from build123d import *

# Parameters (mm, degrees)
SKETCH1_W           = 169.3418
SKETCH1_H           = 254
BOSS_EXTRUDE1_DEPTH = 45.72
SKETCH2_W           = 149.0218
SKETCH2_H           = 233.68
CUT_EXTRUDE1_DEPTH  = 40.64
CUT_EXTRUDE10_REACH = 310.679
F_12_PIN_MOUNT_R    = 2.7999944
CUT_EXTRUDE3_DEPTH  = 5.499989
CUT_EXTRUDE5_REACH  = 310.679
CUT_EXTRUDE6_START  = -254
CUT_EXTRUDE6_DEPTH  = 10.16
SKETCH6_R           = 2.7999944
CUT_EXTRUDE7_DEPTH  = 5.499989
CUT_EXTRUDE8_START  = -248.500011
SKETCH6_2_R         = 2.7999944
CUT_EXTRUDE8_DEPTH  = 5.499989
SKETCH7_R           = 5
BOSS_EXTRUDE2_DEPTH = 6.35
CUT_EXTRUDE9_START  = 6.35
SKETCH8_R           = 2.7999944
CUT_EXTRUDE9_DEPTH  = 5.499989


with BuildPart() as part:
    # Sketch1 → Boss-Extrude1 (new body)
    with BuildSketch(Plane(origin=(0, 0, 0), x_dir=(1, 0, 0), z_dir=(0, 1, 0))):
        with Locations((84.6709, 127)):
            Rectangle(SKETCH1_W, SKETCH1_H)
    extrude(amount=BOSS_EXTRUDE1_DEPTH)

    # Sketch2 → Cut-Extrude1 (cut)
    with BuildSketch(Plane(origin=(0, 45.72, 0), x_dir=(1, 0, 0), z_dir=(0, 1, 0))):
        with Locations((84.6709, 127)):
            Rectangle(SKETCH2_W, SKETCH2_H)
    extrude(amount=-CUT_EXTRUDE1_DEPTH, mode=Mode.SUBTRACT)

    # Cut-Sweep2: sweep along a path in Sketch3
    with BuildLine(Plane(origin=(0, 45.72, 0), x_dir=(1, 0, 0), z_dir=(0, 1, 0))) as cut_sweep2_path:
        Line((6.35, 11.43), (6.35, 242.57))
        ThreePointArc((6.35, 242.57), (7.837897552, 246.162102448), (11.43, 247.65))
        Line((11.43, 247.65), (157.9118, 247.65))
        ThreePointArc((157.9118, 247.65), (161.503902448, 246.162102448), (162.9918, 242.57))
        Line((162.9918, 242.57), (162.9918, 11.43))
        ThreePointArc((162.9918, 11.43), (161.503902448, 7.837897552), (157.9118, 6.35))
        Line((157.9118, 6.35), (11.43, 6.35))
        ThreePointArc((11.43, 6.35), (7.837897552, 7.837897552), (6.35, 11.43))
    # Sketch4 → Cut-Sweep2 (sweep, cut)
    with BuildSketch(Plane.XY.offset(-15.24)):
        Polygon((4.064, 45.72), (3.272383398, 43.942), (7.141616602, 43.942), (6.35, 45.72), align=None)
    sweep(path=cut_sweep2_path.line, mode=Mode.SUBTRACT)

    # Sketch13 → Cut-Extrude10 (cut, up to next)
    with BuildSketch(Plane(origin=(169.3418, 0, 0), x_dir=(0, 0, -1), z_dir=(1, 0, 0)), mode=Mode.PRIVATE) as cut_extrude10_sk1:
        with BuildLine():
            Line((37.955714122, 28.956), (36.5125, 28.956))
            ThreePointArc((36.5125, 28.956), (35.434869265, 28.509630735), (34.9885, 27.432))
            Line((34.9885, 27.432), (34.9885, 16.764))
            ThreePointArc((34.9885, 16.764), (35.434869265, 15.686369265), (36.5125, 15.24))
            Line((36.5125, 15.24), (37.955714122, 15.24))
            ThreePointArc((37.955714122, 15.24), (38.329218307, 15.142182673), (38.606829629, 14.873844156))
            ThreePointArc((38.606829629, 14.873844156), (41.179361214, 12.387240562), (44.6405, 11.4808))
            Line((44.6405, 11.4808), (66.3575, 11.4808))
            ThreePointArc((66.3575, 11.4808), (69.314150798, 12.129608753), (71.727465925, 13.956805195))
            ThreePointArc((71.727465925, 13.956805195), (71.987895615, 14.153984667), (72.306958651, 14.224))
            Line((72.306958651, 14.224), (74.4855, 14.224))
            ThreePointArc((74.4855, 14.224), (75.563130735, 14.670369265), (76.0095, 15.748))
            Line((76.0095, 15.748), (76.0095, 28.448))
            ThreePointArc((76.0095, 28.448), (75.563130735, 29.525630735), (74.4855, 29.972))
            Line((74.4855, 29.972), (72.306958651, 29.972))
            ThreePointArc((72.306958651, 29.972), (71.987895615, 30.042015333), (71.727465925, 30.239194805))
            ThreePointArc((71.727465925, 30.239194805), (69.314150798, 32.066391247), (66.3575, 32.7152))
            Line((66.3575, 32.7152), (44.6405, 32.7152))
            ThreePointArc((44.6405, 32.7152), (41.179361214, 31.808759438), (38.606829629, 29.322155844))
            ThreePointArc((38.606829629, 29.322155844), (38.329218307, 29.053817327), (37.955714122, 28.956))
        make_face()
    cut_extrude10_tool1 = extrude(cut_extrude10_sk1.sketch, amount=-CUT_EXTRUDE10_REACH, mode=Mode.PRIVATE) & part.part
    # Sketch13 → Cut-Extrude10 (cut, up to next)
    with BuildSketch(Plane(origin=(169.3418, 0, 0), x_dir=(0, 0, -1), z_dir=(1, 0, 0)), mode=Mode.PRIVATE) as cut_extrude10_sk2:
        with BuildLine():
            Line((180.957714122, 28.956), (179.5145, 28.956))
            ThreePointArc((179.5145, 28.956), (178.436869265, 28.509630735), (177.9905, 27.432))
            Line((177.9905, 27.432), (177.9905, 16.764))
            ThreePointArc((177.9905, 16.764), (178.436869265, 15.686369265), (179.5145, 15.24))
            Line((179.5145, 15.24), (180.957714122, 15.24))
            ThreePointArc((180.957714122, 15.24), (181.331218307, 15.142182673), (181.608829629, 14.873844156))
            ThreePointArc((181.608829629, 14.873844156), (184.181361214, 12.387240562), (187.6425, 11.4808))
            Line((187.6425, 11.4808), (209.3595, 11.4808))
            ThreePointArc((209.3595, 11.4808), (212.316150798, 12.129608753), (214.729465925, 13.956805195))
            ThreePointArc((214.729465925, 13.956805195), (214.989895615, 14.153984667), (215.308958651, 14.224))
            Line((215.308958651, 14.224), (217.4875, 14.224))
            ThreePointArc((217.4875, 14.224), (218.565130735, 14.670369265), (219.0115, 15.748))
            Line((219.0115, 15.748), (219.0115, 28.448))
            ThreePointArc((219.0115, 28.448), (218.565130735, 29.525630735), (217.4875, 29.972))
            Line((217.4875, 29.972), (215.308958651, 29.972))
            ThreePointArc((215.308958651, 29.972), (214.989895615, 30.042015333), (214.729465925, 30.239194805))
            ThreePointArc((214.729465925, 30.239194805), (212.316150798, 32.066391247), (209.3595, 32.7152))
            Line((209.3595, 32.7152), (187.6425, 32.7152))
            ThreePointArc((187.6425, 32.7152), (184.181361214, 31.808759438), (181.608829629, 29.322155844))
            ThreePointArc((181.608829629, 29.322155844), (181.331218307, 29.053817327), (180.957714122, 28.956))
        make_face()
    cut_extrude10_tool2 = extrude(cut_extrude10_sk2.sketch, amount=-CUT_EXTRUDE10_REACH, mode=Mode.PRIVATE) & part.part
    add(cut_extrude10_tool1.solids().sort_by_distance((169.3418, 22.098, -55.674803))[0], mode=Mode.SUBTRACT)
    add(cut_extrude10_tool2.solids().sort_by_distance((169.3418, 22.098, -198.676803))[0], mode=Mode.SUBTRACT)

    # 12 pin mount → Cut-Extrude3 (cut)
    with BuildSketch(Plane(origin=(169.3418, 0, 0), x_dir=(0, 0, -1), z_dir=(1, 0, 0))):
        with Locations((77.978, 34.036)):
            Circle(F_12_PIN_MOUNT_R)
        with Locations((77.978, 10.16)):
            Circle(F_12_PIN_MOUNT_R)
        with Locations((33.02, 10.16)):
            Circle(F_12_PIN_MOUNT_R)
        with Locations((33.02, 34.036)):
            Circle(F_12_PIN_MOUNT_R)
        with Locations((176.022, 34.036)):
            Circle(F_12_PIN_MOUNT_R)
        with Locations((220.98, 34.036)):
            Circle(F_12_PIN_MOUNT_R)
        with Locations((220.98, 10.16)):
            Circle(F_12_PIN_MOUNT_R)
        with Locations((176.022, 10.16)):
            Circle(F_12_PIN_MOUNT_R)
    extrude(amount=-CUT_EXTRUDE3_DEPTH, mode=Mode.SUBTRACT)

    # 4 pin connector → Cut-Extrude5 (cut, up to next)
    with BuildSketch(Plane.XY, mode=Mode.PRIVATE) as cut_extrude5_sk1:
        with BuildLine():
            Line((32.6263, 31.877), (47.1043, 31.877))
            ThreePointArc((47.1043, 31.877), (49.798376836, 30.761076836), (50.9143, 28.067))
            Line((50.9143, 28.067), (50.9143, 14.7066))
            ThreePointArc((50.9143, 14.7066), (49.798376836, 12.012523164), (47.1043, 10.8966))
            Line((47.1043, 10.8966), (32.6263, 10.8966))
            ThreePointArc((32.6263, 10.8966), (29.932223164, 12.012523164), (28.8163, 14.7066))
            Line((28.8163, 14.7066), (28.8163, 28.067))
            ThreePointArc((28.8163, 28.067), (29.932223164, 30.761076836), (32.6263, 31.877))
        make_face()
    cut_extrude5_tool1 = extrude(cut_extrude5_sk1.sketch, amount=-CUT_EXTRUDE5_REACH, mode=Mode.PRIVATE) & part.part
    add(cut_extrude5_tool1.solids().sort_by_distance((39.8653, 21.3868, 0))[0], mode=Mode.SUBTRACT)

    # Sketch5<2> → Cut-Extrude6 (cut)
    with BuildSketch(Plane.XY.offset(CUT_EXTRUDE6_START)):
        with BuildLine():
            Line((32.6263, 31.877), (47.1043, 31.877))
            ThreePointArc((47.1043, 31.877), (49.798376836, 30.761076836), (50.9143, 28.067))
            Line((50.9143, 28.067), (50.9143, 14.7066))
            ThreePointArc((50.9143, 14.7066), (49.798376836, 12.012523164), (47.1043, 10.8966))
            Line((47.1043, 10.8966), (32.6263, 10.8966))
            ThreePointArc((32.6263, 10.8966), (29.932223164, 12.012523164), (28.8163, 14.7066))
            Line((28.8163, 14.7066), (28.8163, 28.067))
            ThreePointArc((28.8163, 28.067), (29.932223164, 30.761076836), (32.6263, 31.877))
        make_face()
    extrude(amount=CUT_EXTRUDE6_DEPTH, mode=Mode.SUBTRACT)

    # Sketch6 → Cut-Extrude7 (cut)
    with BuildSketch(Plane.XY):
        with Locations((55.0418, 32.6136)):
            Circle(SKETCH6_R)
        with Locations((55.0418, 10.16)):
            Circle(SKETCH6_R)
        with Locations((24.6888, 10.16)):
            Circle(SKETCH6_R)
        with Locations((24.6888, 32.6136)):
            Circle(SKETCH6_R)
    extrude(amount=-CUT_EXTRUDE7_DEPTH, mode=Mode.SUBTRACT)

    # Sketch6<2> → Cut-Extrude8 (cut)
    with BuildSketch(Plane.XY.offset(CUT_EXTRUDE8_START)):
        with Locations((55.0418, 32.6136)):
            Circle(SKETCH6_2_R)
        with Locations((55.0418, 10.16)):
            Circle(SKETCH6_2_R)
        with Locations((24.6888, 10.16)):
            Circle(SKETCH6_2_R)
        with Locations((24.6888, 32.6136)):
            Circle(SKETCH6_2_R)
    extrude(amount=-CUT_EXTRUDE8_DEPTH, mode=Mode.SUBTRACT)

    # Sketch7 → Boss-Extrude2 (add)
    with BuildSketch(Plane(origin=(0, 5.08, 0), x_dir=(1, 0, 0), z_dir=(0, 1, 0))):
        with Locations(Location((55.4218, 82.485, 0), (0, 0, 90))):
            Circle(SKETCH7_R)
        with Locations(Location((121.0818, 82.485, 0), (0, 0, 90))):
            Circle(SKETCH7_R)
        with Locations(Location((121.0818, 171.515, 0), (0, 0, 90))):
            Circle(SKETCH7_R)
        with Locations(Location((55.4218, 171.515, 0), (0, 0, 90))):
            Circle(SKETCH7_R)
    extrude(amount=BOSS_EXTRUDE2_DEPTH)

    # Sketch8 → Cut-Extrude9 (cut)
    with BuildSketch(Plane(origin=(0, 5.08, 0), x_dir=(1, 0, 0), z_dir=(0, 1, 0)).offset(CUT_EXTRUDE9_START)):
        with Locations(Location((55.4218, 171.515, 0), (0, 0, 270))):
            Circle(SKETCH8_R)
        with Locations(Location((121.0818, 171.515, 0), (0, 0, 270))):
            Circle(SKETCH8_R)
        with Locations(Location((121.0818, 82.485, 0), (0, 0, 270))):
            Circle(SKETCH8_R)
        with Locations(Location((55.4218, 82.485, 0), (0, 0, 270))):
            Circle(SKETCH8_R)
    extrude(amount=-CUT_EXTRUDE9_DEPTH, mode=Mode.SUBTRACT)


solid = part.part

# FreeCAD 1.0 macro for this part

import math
import FreeCAD as App
import Part
import Sketcher
from FreeCAD import Vector
Q = App.Units.Quantity


def add_polygon(sketch, points):
    """Adds a closed chain of lines whose ends are joined by coincident constraints."""
    first, n = sketch.GeometryCount, len(points)
    for a, b in zip(points, points[1:] + points[:1]):
        sketch.addGeometry(Part.LineSegment(App.Vector(*a, 0), App.Vector(*b, 0)), False)
    for i in range(n):
        sketch.addConstraint(Sketcher.Constraint("Coincident", first + i, 2, first + (i + 1) % n, 1))

doc = App.newDocument("Part")
body = doc.addObject("PartDesign::Body", "Body")

# Sketch on XZ plane
sketch1 = body.newObject("Sketcher::SketchObject", "Sketch")
sketch1.AttachmentSupport = (doc.getObject("XZ_Plane"), [""])
sketch1.MapMode = "FlatFace"
add_polygon(sketch1, [(0, -254), (0, 0), (169, 0), (169, -254)])  # lines 0-3
sketch1.addConstraint(Sketcher.Constraint("Vertical", 0))
sketch1.addConstraint(Sketcher.Constraint("Horizontal", 1))
sketch1.addConstraint(Sketcher.Constraint("Vertical", 2))
sketch1.addConstraint(Sketcher.Constraint("Horizontal", 3))
sketch1.addConstraint(Sketcher.Constraint("Coincident", 0, 2, -1, 1))
sketch1.addConstraint(Sketcher.Constraint("DistanceY", 0, 1, 0, 2, Q("10 in")))
sketch1.addConstraint(Sketcher.Constraint("DistanceX", 1, 1, 1, 2, Q("6.667 in")))
pad1 = body.newObject("PartDesign::Pad", "Pad")
pad1.Profile = sketch1
pad1.Length = Q("1.8 in")
pad1.Reversed = True

# Sketch on XZ plane
sketch2 = body.newObject("Sketcher::SketchObject", "Sketch001")
sketch2.AttachmentSupport = (doc.getObject("XZ_Plane"), [""])
sketch2.MapMode = "FlatFace"
sketch2.AttachmentOffset = App.Placement(Vector(0, 0, -1.8 * 25.4), App.Rotation())
add_polygon(sketch2, [(10, -244), (10, -10), (159, -10), (159, -244)])  # lines 0-3
sketch2.addConstraint(Sketcher.Constraint("Vertical", 0))
sketch2.addConstraint(Sketcher.Constraint("Horizontal", 1))
sketch2.addConstraint(Sketcher.Constraint("Vertical", 2))
sketch2.addConstraint(Sketcher.Constraint("Horizontal", 3))
sketch2.addConstraint(Sketcher.Constraint("DistanceY", 0, 1, 0, 2, Q("9.2 in")))
sketch2.addConstraint(Sketcher.Constraint("DistanceX", -1, 1, 0, 2, Q("0.4 in")))
sketch2.addConstraint(Sketcher.Constraint("DistanceY", 0, 2, -1, 1, Q("0.4 in")))
sketch2.addConstraint(Sketcher.Constraint("DistanceX", 1, 1, 1, 2, Q("5.867 in")))
pocket1 = body.newObject("PartDesign::Pocket", "Pocket")
pocket1.Profile = sketch2
pocket1.Length = Q("1.6 in")
pocket1.Reversed = True

# Sketch on XY plane
sketch3 = body.newObject("Sketcher::SketchObject", "Sketch002")
sketch3.AttachmentSupport = (doc.getObject("XY_Plane"), [""])
sketch3.MapMode = "FlatFace"
sketch3.AttachmentOffset = App.Placement(Vector(0, 0, -0.6 * 25.4), App.Rotation())
add_polygon(sketch3, [(4.1, 45.7), (3.3, 43.9), (7.1, 43.9), (6.3, 45.7)])  # lines 0-3
sketch3.addConstraint(Sketcher.Constraint("Horizontal", 1))
sketch3.addConstraint(Sketcher.Constraint("Horizontal", 3))
sketch3.addConstraint(Sketcher.Constraint("Equal", 0, 2))
sketch3.addConstraint(Sketcher.Constraint("Angle", 0, Q("-114 deg")))
sketch3.addConstraint(Sketcher.Constraint("DistanceX", 3, 2, 3, 1, Q("0.09 in")))
sketch3.addConstraint(Sketcher.Constraint("DistanceY", -1, 1, 2, 2, Q("1.8 in")))
sketch3.addConstraint(Sketcher.Constraint("DistanceY", -1, 1, 0, 2, Q("1.73 in")))
sketch3.addConstraint(Sketcher.Constraint("DistanceX", -1, 1, 2, 2, Q("0.25 in")))

# Sketch on XZ plane
sketch4 = body.newObject("Sketcher::SketchObject", "Sketch003")
sketch4.AttachmentSupport = (doc.getObject("XZ_Plane"), [""])
sketch4.MapMode = "FlatFace"
sketch4.AttachmentOffset = App.Placement(Vector(0, 0, -1.8 * 25.4), App.Rotation())
sketch4.addGeometry(Part.LineSegment(Vector(6, -11, 0), Vector(6, -243, 0)), False)
sketch4.addGeometry(Part.ArcOfCircle(Part.Circle(Vector(11, -243, 0), Vector(0, 0, 1), 5), math.radians(-180), math.radians(-90)), False)
sketch4.addGeometry(Part.LineSegment(Vector(11, -248, 0), Vector(158, -248, 0)), False)
sketch4.addGeometry(Part.ArcOfCircle(Part.Circle(Vector(158, -243, 0), Vector(0, 0, 1), 5), math.radians(-90), math.radians(0)), False)
sketch4.addGeometry(Part.LineSegment(Vector(163, -243, 0), Vector(163, -11, 0)), False)
sketch4.addGeometry(Part.ArcOfCircle(Part.Circle(Vector(158, -11, 0), Vector(0, 0, 1), 5), math.radians(0), math.radians(90)), False)
sketch4.addGeometry(Part.LineSegment(Vector(158, -6, 0), Vector(11, -6, 0)), False)
sketch4.addGeometry(Part.ArcOfCircle(Part.Circle(Vector(11, -11, 0), Vector(0, 0, 1), 5), math.radians(90), math.radians(180)), False)
sketch4.addConstraint(Sketcher.Constraint("Tangent", 0, 2, 1, 1))
sketch4.addConstraint(Sketcher.Constraint("Tangent", 1, 2, 2, 1))
sketch4.addConstraint(Sketcher.Constraint("Tangent", 2, 2, 3, 1))
sketch4.addConstraint(Sketcher.Constraint("Tangent", 3, 2, 4, 1))
sketch4.addConstraint(Sketcher.Constraint("Tangent", 4, 2, 5, 1))
sketch4.addConstraint(Sketcher.Constraint("Tangent", 5, 2, 6, 1))
sketch4.addConstraint(Sketcher.Constraint("Tangent", 6, 2, 7, 1))
sketch4.addConstraint(Sketcher.Constraint("Tangent", 7, 2, 0, 1))
sketch4.addConstraint(Sketcher.Constraint("Vertical", 0))
sketch4.addConstraint(Sketcher.Constraint("Horizontal", 2))
sketch4.addConstraint(Sketcher.Constraint("Vertical", 4))
sketch4.addConstraint(Sketcher.Constraint("Horizontal", 6))
sketch4.addConstraint(Sketcher.Constraint("Equal", 1, 3))
sketch4.addConstraint(Sketcher.Constraint("Equal", 3, 5))
sketch4.addConstraint(Sketcher.Constraint("Equal", 5, 7))
sketch4.addConstraint(Sketcher.Constraint("Radius", 1, Q("0.2 in")))
sketch4.addConstraint(Sketcher.Constraint("DistanceY", 0, 2, 0, 1, Q("9.1 in")))
sketch4.addConstraint(Sketcher.Constraint("DistanceX", 2, 1, 2, 2, Q("5.767 in")))
sketch4.addConstraint(Sketcher.Constraint("DistanceX", -1, 1, 1, 3, Q("0.45 in")))
sketch4.addConstraint(Sketcher.Constraint("DistanceY", 1, 3, -1, 1, Q("9.55 in")))
doc.recompute()

subtractivepipe = body.newObject("PartDesign::SubtractivePipe", "SubtractivePipe")
subtractivepipe.Profile = sketch3
subtractivepipe.Spine = (sketch4, ["Edge1", "Edge2", "Edge3", "Edge4", "Edge5", "Edge6", "Edge7", "Edge8"])

# Sketch on YZ plane
sketch5 = body.newObject("Sketcher::SketchObject", "Sketch004")
sketch5.AttachmentSupport = (doc.getObject("YZ_Plane"), [""])
sketch5.MapMode = "FlatFace"
sketch5.AttachmentOffset = App.Placement(Vector(0, 0, 6.667 * 25.4), App.Rotation())
sketch5.addGeometry(Part.LineSegment(Vector(29, -38, 0), Vector(29, -36.5, 0)), False)
sketch5.addGeometry(Part.ArcOfCircle(Part.Circle(Vector(27.4, -36.5, 0), Vector(0, 0, 1), 1.5), math.radians(0), math.radians(90)), False)
sketch5.addGeometry(Part.LineSegment(Vector(27.4, -35, 0), Vector(16.8, -35, 0)), False)
sketch5.addGeometry(Part.ArcOfCircle(Part.Circle(Vector(16.8, -36.5, 0), Vector(0, 0, 1), 1.5), math.radians(90), math.radians(180)), False)
sketch5.addGeometry(Part.LineSegment(Vector(15.2, -36.5, 0), Vector(15.2, -38, 0)), False)
sketch5.addGeometry(Part.ArcOfCircle(Part.Circle(Vector(14.5, -38, 0), Vector(0, 0, 1), 0.8), math.radians(-59), math.radians(0)), False)
sketch5.addGeometry(Part.ArcOfCircle(Part.Circle(Vector(18.5, -44.6, 0), Vector(0, 0, 1), 7.1), math.radians(121), math.radians(180)), False)
sketch5.addGeometry(Part.LineSegment(Vector(11.5, -44.6, 0), Vector(11.5, -66.4, 0)), False)
sketch5.addGeometry(Part.ArcOfCircle(Part.Circle(Vector(18.5, -66.4, 0), Vector(0, 0, 1), 7.1), math.radians(180), math.radians(230)), False)
sketch5.addGeometry(Part.ArcOfCircle(Part.Circle(Vector(13.5, -72.3, 0), Vector(0, 0, 1), 0.8), math.radians(0), math.radians(50)), False)
sketch5.addGeometry(Part.LineSegment(Vector(14.2, -72.3, 0), Vector(14.2, -74.5, 0)), False)
sketch5.addGeometry(Part.ArcOfCircle(Part.Circle(Vector(15.7, -74.5, 0), Vector(0, 0, 1), 1.5), math.radians(180), math.radians(270)), False)
sketch5.addGeometry(Part.LineSegment(Vector(15.7, -76, 0), Vector(28.4, -76, 0)), False)
sketch5.addGeometry(Part.ArcOfCircle(Part.Circle(Vector(28.4, -74.5, 0), Vector(0, 0, 1), 1.5), math.radians(-90), math.radians(0)), False)
sketch5.addGeometry(Part.LineSegment(Vector(30, -74.5, 0), Vector(30, -72.3, 0)), False)
sketch5.addGeometry(Part.ArcOfCircle(Part.Circle(Vector(30.7, -72.3, 0), Vector(0, 0, 1), 0.8), math.radians(130), math.radians(180)), False)
sketch5.addGeometry(Part.ArcOfCircle(Part.Circle(Vector(25.7, -66.4, 0), Vector(0, 0, 1), 7.1), math.radians(-50), math.radians(0)), False)
sketch5.addGeometry(Part.LineSegment(Vector(32.7, -66.4, 0), Vector(32.7, -44.6, 0)), False)
sketch5.addGeometry(Part.ArcOfCircle(Part.Circle(Vector(25.7, -44.6, 0), Vector(0, 0, 1), 7.1), math.radians(0), math.radians(59)), False)
sketch5.addGeometry(Part.ArcOfCircle(Part.Circle(Vector(29.7, -38, 0), Vector(0, 0, 1), 0.8), math.radians(-180), math.radians(-121)), False)
sketch5.addConstraint(Sketcher.Constraint("Tangent", 0, 2, 1, 1))
sketch5.addConstraint(Sketcher.Constraint("Tangent", 1, 2, 2, 1))
sketch5.addConstraint(Sketcher.Constraint("Tangent", 2, 2, 3, 1))
sketch5.addConstraint(Sketcher.Constraint("Tangent", 3, 2, 4, 1))
sketch5.addConstraint(Sketcher.Constraint("Tangent", 4, 2, 5, 2))
sketch5.addConstraint(Sketcher.Constraint("Tangent", 5, 1, 6, 1))
sketch5.addConstraint(Sketcher.Constraint("Tangent", 6, 2, 7, 1))
sketch5.addConstraint(Sketcher.Constraint("Tangent", 7, 2, 8, 1))
sketch5.addConstraint(Sketcher.Constraint("Tangent", 8, 2, 9, 2))
sketch5.addConstraint(Sketcher.Constraint("Tangent", 9, 1, 10, 1))
sketch5.addConstraint(Sketcher.Constraint("Tangent", 10, 2, 11, 1))
sketch5.addConstraint(Sketcher.Constraint("Tangent", 11, 2, 12, 1))
sketch5.addConstraint(Sketcher.Constraint("Tangent", 12, 2, 13, 1))
sketch5.addConstraint(Sketcher.Constraint("Tangent", 13, 2, 14, 1))
sketch5.addConstraint(Sketcher.Constraint("Tangent", 14, 2, 15, 2))
sketch5.addConstraint(Sketcher.Constraint("Tangent", 15, 1, 16, 1))
sketch5.addConstraint(Sketcher.Constraint("Tangent", 16, 2, 17, 1))
sketch5.addConstraint(Sketcher.Constraint("Tangent", 17, 2, 18, 1))
sketch5.addConstraint(Sketcher.Constraint("Tangent", 18, 2, 19, 2))
sketch5.addConstraint(Sketcher.Constraint("Tangent", 19, 1, 0, 1))
sketch5.addConstraint(Sketcher.Constraint("Vertical", 0))
sketch5.addConstraint(Sketcher.Constraint("Horizontal", 2))
sketch5.addConstraint(Sketcher.Constraint("Vertical", 4))
sketch5.addConstraint(Sketcher.Constraint("Vertical", 7))
sketch5.addConstraint(Sketcher.Constraint("Vertical", 10))
sketch5.addConstraint(Sketcher.Constraint("Horizontal", 12))
sketch5.addConstraint(Sketcher.Constraint("Vertical", 14))
sketch5.addConstraint(Sketcher.Constraint("Vertical", 17))
sketch5.addConstraint(Sketcher.Constraint("Equal", 1, 3))
sketch5.addConstraint(Sketcher.Constraint("Equal", 6, 8))
sketch5.addConstraint(Sketcher.Constraint("Equal", 5, 9))
sketch5.addConstraint(Sketcher.Constraint("Equal", 3, 11))
sketch5.addConstraint(Sketcher.Constraint("Equal", 11, 13))
sketch5.addConstraint(Sketcher.Constraint("Equal", 9, 15))
sketch5.addConstraint(Sketcher.Constraint("Equal", 8, 16))
sketch5.addConstraint(Sketcher.Constraint("Equal", 16, 18))
sketch5.addConstraint(Sketcher.Constraint("Equal", 15, 19))
sketch5.addConstraint(Sketcher.Constraint("Horizontal", 9, 3, 15, 3))
sketch5.addConstraint(Sketcher.Constraint("Horizontal", 8, 3, 16, 3))
sketch5.addConstraint(Sketcher.Constraint("Horizontal", 6, 3, 18, 3))
sketch5.addConstraint(Sketcher.Constraint("Horizontal", 5, 3, 19, 3))
sketch5.addConstraint(Sketcher.Constraint("Radius", 1, Q("0.06 in")))
sketch5.addConstraint(Sketcher.Constraint("Radius", 5, Q("0.03 in")))
sketch5.addConstraint(Sketcher.Constraint("DistanceX", 12, 1, 12, 2, Q("0.5 in")))
sketch5.addConstraint(Sketcher.Constraint("Radius", 6, Q("0.278 in")))
sketch5.addConstraint(Sketcher.Constraint("DistanceX", 2, 2, 2, 1, Q("0.42 in")))
sketch5.addConstraint(Sketcher.Constraint("DistanceX", -1, 1, 3, 2, Q("0.6 in")))
sketch5.addConstraint(Sketcher.Constraint("DistanceX", 9, 3, 8, 3, Q("0.2 in")))
sketch5.addConstraint(Sketcher.Constraint("DistanceY", 7, 2, 7, 1, Q("0.855 in")))
sketch5.addConstraint(Sketcher.Constraint("DistanceY", 6, 3, 3, 3, Q("0.32 in")))
sketch5.addConstraint(Sketcher.Constraint("DistanceY", 11, 3, 8, 3, Q("0.32 in")))
sketch5.addConstraint(Sketcher.Constraint("DistanceY", 1, 3, -1, 1, Q("1.4375 in")))
pocket2 = body.newObject("PartDesign::Pocket", "Pocket001")
pocket2.Profile = sketch5
pocket2.Type = "UpToFirst"

# Sketch on YZ plane
sketch6 = body.newObject("Sketcher::SketchObject", "Sketch005")
sketch6.AttachmentSupport = (doc.getObject("YZ_Plane"), [""])
sketch6.MapMode = "FlatFace"
sketch6.AttachmentOffset = App.Placement(Vector(0, 0, 6.667 * 25.4), App.Rotation())
sketch6.addGeometry(Part.LineSegment(Vector(29, -181, 0), Vector(29, -179.5, 0)), False)
sketch6.addGeometry(Part.ArcOfCircle(Part.Circle(Vector(27.4, -179.5, 0), Vector(0, 0, 1), 1.5), math.radians(0), math.radians(90)), False)
sketch6.addGeometry(Part.LineSegment(Vector(27.4, -178, 0), Vector(16.8, -178, 0)), False)
sketch6.addGeometry(Part.ArcOfCircle(Part.Circle(Vector(16.8, -179.5, 0), Vector(0, 0, 1), 1.5), math.radians(90), math.radians(180)), False)
sketch6.addGeometry(Part.LineSegment(Vector(15.2, -179.5, 0), Vector(15.2, -181, 0)), False)
sketch6.addGeometry(Part.ArcOfCircle(Part.Circle(Vector(14.5, -181, 0), Vector(0, 0, 1), 0.8), math.radians(-59), math.radians(0)), False)
sketch6.addGeometry(Part.ArcOfCircle(Part.Circle(Vector(18.5, -187.6, 0), Vector(0, 0, 1), 7.1), math.radians(121), math.radians(180)), False)
sketch6.addGeometry(Part.LineSegment(Vector(11.5, -187.6, 0), Vector(11.5, -209.4, 0)), False)
sketch6.addGeometry(Part.ArcOfCircle(Part.Circle(Vector(18.5, -209.4, 0), Vector(0, 0, 1), 7.1), math.radians(180), math.radians(230)), False)
sketch6.addGeometry(Part.ArcOfCircle(Part.Circle(Vector(13.5, -215.3, 0), Vector(0, 0, 1), 0.8), math.radians(0), math.radians(50)), False)
sketch6.addGeometry(Part.LineSegment(Vector(14.2, -215.3, 0), Vector(14.2, -217.5, 0)), False)
sketch6.addGeometry(Part.ArcOfCircle(Part.Circle(Vector(15.7, -217.5, 0), Vector(0, 0, 1), 1.5), math.radians(180), math.radians(270)), False)
sketch6.addGeometry(Part.LineSegment(Vector(15.7, -219, 0), Vector(28.4, -219, 0)), False)
sketch6.addGeometry(Part.ArcOfCircle(Part.Circle(Vector(28.4, -217.5, 0), Vector(0, 0, 1), 1.5), math.radians(-90), math.radians(0)), False)
sketch6.addGeometry(Part.LineSegment(Vector(30, -217.5, 0), Vector(30, -215.3, 0)), False)
sketch6.addGeometry(Part.ArcOfCircle(Part.Circle(Vector(30.7, -215.3, 0), Vector(0, 0, 1), 0.8), math.radians(130), math.radians(180)), False)
sketch6.addGeometry(Part.ArcOfCircle(Part.Circle(Vector(25.7, -209.4, 0), Vector(0, 0, 1), 7.1), math.radians(-50), math.radians(0)), False)
sketch6.addGeometry(Part.LineSegment(Vector(32.7, -209.4, 0), Vector(32.7, -187.6, 0)), False)
sketch6.addGeometry(Part.ArcOfCircle(Part.Circle(Vector(25.7, -187.6, 0), Vector(0, 0, 1), 7.1), math.radians(0), math.radians(59)), False)
sketch6.addGeometry(Part.ArcOfCircle(Part.Circle(Vector(29.7, -181, 0), Vector(0, 0, 1), 0.8), math.radians(-180), math.radians(-121)), False)
sketch6.addConstraint(Sketcher.Constraint("Tangent", 0, 2, 1, 1))
sketch6.addConstraint(Sketcher.Constraint("Tangent", 1, 2, 2, 1))
sketch6.addConstraint(Sketcher.Constraint("Tangent", 2, 2, 3, 1))
sketch6.addConstraint(Sketcher.Constraint("Tangent", 3, 2, 4, 1))
sketch6.addConstraint(Sketcher.Constraint("Tangent", 4, 2, 5, 2))
sketch6.addConstraint(Sketcher.Constraint("Tangent", 5, 1, 6, 1))
sketch6.addConstraint(Sketcher.Constraint("Tangent", 6, 2, 7, 1))
sketch6.addConstraint(Sketcher.Constraint("Tangent", 7, 2, 8, 1))
sketch6.addConstraint(Sketcher.Constraint("Tangent", 8, 2, 9, 2))
sketch6.addConstraint(Sketcher.Constraint("Tangent", 9, 1, 10, 1))
sketch6.addConstraint(Sketcher.Constraint("Tangent", 10, 2, 11, 1))
sketch6.addConstraint(Sketcher.Constraint("Tangent", 11, 2, 12, 1))
sketch6.addConstraint(Sketcher.Constraint("Tangent", 12, 2, 13, 1))
sketch6.addConstraint(Sketcher.Constraint("Tangent", 13, 2, 14, 1))
sketch6.addConstraint(Sketcher.Constraint("Tangent", 14, 2, 15, 2))
sketch6.addConstraint(Sketcher.Constraint("Tangent", 15, 1, 16, 1))
sketch6.addConstraint(Sketcher.Constraint("Tangent", 16, 2, 17, 1))
sketch6.addConstraint(Sketcher.Constraint("Tangent", 17, 2, 18, 1))
sketch6.addConstraint(Sketcher.Constraint("Tangent", 18, 2, 19, 2))
sketch6.addConstraint(Sketcher.Constraint("Tangent", 19, 1, 0, 1))
sketch6.addConstraint(Sketcher.Constraint("Vertical", 0))
sketch6.addConstraint(Sketcher.Constraint("Horizontal", 2))
sketch6.addConstraint(Sketcher.Constraint("Vertical", 4))
sketch6.addConstraint(Sketcher.Constraint("Vertical", 7))
sketch6.addConstraint(Sketcher.Constraint("Vertical", 10))
sketch6.addConstraint(Sketcher.Constraint("Horizontal", 12))
sketch6.addConstraint(Sketcher.Constraint("Vertical", 14))
sketch6.addConstraint(Sketcher.Constraint("Vertical", 17))
sketch6.addConstraint(Sketcher.Constraint("Equal", 1, 3))
sketch6.addConstraint(Sketcher.Constraint("Equal", 6, 8))
sketch6.addConstraint(Sketcher.Constraint("Equal", 5, 9))
sketch6.addConstraint(Sketcher.Constraint("Equal", 3, 11))
sketch6.addConstraint(Sketcher.Constraint("Equal", 11, 13))
sketch6.addConstraint(Sketcher.Constraint("Equal", 9, 15))
sketch6.addConstraint(Sketcher.Constraint("Equal", 8, 16))
sketch6.addConstraint(Sketcher.Constraint("Equal", 16, 18))
sketch6.addConstraint(Sketcher.Constraint("Equal", 15, 19))
sketch6.addConstraint(Sketcher.Constraint("Horizontal", 9, 3, 15, 3))
sketch6.addConstraint(Sketcher.Constraint("Horizontal", 8, 3, 16, 3))
sketch6.addConstraint(Sketcher.Constraint("Horizontal", 6, 3, 18, 3))
sketch6.addConstraint(Sketcher.Constraint("Horizontal", 5, 3, 19, 3))
sketch6.addConstraint(Sketcher.Constraint("Radius", 1, Q("0.06 in")))
sketch6.addConstraint(Sketcher.Constraint("Radius", 5, Q("0.03 in")))
sketch6.addConstraint(Sketcher.Constraint("DistanceX", 12, 1, 12, 2, Q("0.5 in")))
sketch6.addConstraint(Sketcher.Constraint("Radius", 6, Q("0.278 in")))
sketch6.addConstraint(Sketcher.Constraint("DistanceX", 2, 2, 2, 1, Q("0.42 in")))
sketch6.addConstraint(Sketcher.Constraint("DistanceX", -1, 1, 3, 2, Q("0.6 in")))
sketch6.addConstraint(Sketcher.Constraint("DistanceX", 9, 3, 8, 3, Q("0.2 in")))
sketch6.addConstraint(Sketcher.Constraint("DistanceY", 7, 2, 7, 1, Q("0.855 in")))
sketch6.addConstraint(Sketcher.Constraint("DistanceY", 6, 3, 3, 3, Q("0.32 in")))
sketch6.addConstraint(Sketcher.Constraint("DistanceY", 11, 3, 8, 3, Q("0.32 in")))
sketch6.addConstraint(Sketcher.Constraint("DistanceY", 11, 3, -1, 1, Q("8.5625 in")))
pocket3 = body.newObject("PartDesign::Pocket", "Pocket002")
pocket3.Profile = sketch6
pocket3.Type = "UpToFirst"

# Sketch on YZ plane
sketch7 = body.newObject("Sketcher::SketchObject", "Sketch006")
sketch7.AttachmentSupport = (doc.getObject("YZ_Plane"), [""])
sketch7.MapMode = "FlatFace"
sketch7.AttachmentOffset = App.Placement(Vector(0, 0, 6.667 * 25.4), App.Rotation())
sketch7.addGeometry(Part.Circle(Vector(34, -78, 0), Vector(0, 0, 1), 2.8), False)
sketch7.addGeometry(Part.Circle(Vector(10.2, -78, 0), Vector(0, 0, 1), 2.8), False)
sketch7.addGeometry(Part.Circle(Vector(10.2, -33, 0), Vector(0, 0, 1), 2.8), False)
sketch7.addGeometry(Part.Circle(Vector(34, -33, 0), Vector(0, 0, 1), 2.8), False)
sketch7.addGeometry(Part.Circle(Vector(34, -176, 0), Vector(0, 0, 1), 2.8), False)
sketch7.addGeometry(Part.Circle(Vector(34, -221, 0), Vector(0, 0, 1), 2.8), False)
sketch7.addGeometry(Part.Circle(Vector(10.2, -221, 0), Vector(0, 0, 1), 2.8), False)
sketch7.addGeometry(Part.Circle(Vector(10.2, -176, 0), Vector(0, 0, 1), 2.8), False)
sketch7.addConstraint(Sketcher.Constraint("Equal", 0, 1))
sketch7.addConstraint(Sketcher.Constraint("Equal", 1, 2))
sketch7.addConstraint(Sketcher.Constraint("Equal", 2, 3))
sketch7.addConstraint(Sketcher.Constraint("Equal", 3, 4))
sketch7.addConstraint(Sketcher.Constraint("Equal", 4, 5))
sketch7.addConstraint(Sketcher.Constraint("Equal", 5, 6))
sketch7.addConstraint(Sketcher.Constraint("Equal", 6, 7))
sketch7.addConstraint(Sketcher.Constraint("Horizontal", 0, 3, 1, 3))
sketch7.addConstraint(Sketcher.Constraint("Horizontal", 2, 3, 3, 3))
sketch7.addConstraint(Sketcher.Constraint("Horizontal", 5, 3, 6, 3))
sketch7.addConstraint(Sketcher.Constraint("Horizontal", 4, 3, 7, 3))
sketch7.addConstraint(Sketcher.Constraint("Vertical", 1, 3, 2, 3))
sketch7.addConstraint(Sketcher.Constraint("Vertical", 0, 3, 3, 3))
sketch7.addConstraint(Sketcher.Constraint("Vertical", 3, 3, 4, 3))
sketch7.addConstraint(Sketcher.Constraint("Vertical", 4, 3, 5, 3))
sketch7.addConstraint(Sketcher.Constraint("Vertical", 2, 3, 6, 3))
sketch7.addConstraint(Sketcher.Constraint("Vertical", 6, 3, 7, 3))
sketch7.addConstraint(Sketcher.Constraint("DistanceX", -1, 1, 1, 3, Q("0.4 in")))
sketch7.addConstraint(Sketcher.Constraint("DistanceY", 2, 3, -1, 1, Q("1.3 in")))
sketch7.addConstraint(Sketcher.Constraint("DistanceY", 5, 3, -1, 1, Q("8.7 in")))
sketch7.addConstraint(Sketcher.Constraint("DistanceX", -1, 1, 0, 3, Q("1.34 in")))
sketch7.addConstraint(Sketcher.Constraint("DistanceY", 0, 3, -1, 1, Q("3.07 in")))
sketch7.addConstraint(Sketcher.Constraint("DistanceY", 4, 3, -1, 1, Q("6.93 in")))
sketch7.addConstraint(Sketcher.Constraint("Diameter", 0, 5.599989))
pocket4 = body.newObject("PartDesign::Pocket", "Pocket003")
pocket4.Profile = sketch7
pocket4.Length = 5.499989

# Sketch on XY plane
sketch8 = body.newObject("Sketcher::SketchObject", "Sketch007")
sketch8.AttachmentSupport = (doc.getObject("XY_Plane"), [""])
sketch8.MapMode = "FlatFace"
sketch8.addGeometry(Part.LineSegment(Vector(47.1, 31.9, 0), Vector(32.6, 31.9, 0)), False)
sketch8.addGeometry(Part.ArcOfCircle(Part.Circle(Vector(32.6, 28.1, 0), Vector(0, 0, 1), 3.8), math.radians(90), math.radians(180)), False)
sketch8.addGeometry(Part.LineSegment(Vector(28.8, 28.1, 0), Vector(28.8, 14.7, 0)), False)
sketch8.addGeometry(Part.ArcOfCircle(Part.Circle(Vector(32.6, 14.7, 0), Vector(0, 0, 1), 3.8), math.radians(-180), math.radians(-90)), False)
sketch8.addGeometry(Part.LineSegment(Vector(32.6, 10.9, 0), Vector(47.1, 10.9, 0)), False)
sketch8.addGeometry(Part.ArcOfCircle(Part.Circle(Vector(47.1, 14.7, 0), Vector(0, 0, 1), 3.8), math.radians(-90), math.radians(0)), False)
sketch8.addGeometry(Part.LineSegment(Vector(50.9, 14.7, 0), Vector(50.9, 28.1, 0)), False)
sketch8.addGeometry(Part.ArcOfCircle(Part.Circle(Vector(47.1, 28.1, 0), Vector(0, 0, 1), 3.8), math.radians(0), math.radians(90)), False)
sketch8.addConstraint(Sketcher.Constraint("Tangent", 0, 2, 1, 1))
sketch8.addConstraint(Sketcher.Constraint("Tangent", 1, 2, 2, 1))
sketch8.addConstraint(Sketcher.Constraint("Tangent", 2, 2, 3, 1))
sketch8.addConstraint(Sketcher.Constraint("Tangent", 3, 2, 4, 1))
sketch8.addConstraint(Sketcher.Constraint("Tangent", 4, 2, 5, 1))
sketch8.addConstraint(Sketcher.Constraint("Tangent", 5, 2, 6, 1))
sketch8.addConstraint(Sketcher.Constraint("Tangent", 6, 2, 7, 1))
sketch8.addConstraint(Sketcher.Constraint("Tangent", 7, 2, 0, 1))
sketch8.addConstraint(Sketcher.Constraint("Horizontal", 0))
sketch8.addConstraint(Sketcher.Constraint("Vertical", 2))
sketch8.addConstraint(Sketcher.Constraint("Horizontal", 4))
sketch8.addConstraint(Sketcher.Constraint("Vertical", 6))
sketch8.addConstraint(Sketcher.Constraint("Equal", 1, 3))
sketch8.addConstraint(Sketcher.Constraint("Equal", 3, 5))
sketch8.addConstraint(Sketcher.Constraint("Equal", 5, 7))
sketch8.addConstraint(Sketcher.Constraint("Radius", 1, Q("0.15 in")))
sketch8.addConstraint(Sketcher.Constraint("DistanceX", 0, 2, 0, 1, Q("0.57 in")))
sketch8.addConstraint(Sketcher.Constraint("DistanceY", 2, 2, 2, 1, Q("0.526 in")))
sketch8.addConstraint(Sketcher.Constraint("DistanceY", -1, 1, 1, 3, Q("1.105 in")))
sketch8.addConstraint(Sketcher.Constraint("DistanceX", -1, 1, 1, 3, Q("1.2845 in")))
pocket5 = body.newObject("PartDesign::Pocket", "Pocket004")
pocket5.Profile = sketch8
pocket5.Type = "UpToFirst"

# Sketch on XY plane
sketch9 = body.newObject("Sketcher::SketchObject", "Sketch008")
sketch9.AttachmentSupport = (doc.getObject("XY_Plane"), [""])
sketch9.MapMode = "FlatFace"
sketch9.AttachmentOffset = App.Placement(Vector(0, 0, -10 * 25.4), App.Rotation())
sketch9.addGeometry(Part.LineSegment(Vector(47.1, 31.9, 0), Vector(32.6, 31.9, 0)), False)
sketch9.addGeometry(Part.ArcOfCircle(Part.Circle(Vector(32.6, 28.1, 0), Vector(0, 0, 1), 3.8), math.radians(90), math.radians(180)), False)
sketch9.addGeometry(Part.LineSegment(Vector(28.8, 28.1, 0), Vector(28.8, 14.7, 0)), False)
sketch9.addGeometry(Part.ArcOfCircle(Part.Circle(Vector(32.6, 14.7, 0), Vector(0, 0, 1), 3.8), math.radians(-180), math.radians(-90)), False)
sketch9.addGeometry(Part.LineSegment(Vector(32.6, 10.9, 0), Vector(47.1, 10.9, 0)), False)
sketch9.addGeometry(Part.ArcOfCircle(Part.Circle(Vector(47.1, 14.7, 0), Vector(0, 0, 1), 3.8), math.radians(-90), math.radians(0)), False)
sketch9.addGeometry(Part.LineSegment(Vector(50.9, 14.7, 0), Vector(50.9, 28.1, 0)), False)
sketch9.addGeometry(Part.ArcOfCircle(Part.Circle(Vector(47.1, 28.1, 0), Vector(0, 0, 1), 3.8), math.radians(0), math.radians(90)), False)
sketch9.addConstraint(Sketcher.Constraint("Tangent", 0, 2, 1, 1))
sketch9.addConstraint(Sketcher.Constraint("Tangent", 1, 2, 2, 1))
sketch9.addConstraint(Sketcher.Constraint("Tangent", 2, 2, 3, 1))
sketch9.addConstraint(Sketcher.Constraint("Tangent", 3, 2, 4, 1))
sketch9.addConstraint(Sketcher.Constraint("Tangent", 4, 2, 5, 1))
sketch9.addConstraint(Sketcher.Constraint("Tangent", 5, 2, 6, 1))
sketch9.addConstraint(Sketcher.Constraint("Tangent", 6, 2, 7, 1))
sketch9.addConstraint(Sketcher.Constraint("Tangent", 7, 2, 0, 1))
sketch9.addConstraint(Sketcher.Constraint("Horizontal", 0))
sketch9.addConstraint(Sketcher.Constraint("Vertical", 2))
sketch9.addConstraint(Sketcher.Constraint("Horizontal", 4))
sketch9.addConstraint(Sketcher.Constraint("Vertical", 6))
sketch9.addConstraint(Sketcher.Constraint("Equal", 1, 3))
sketch9.addConstraint(Sketcher.Constraint("Equal", 3, 5))
sketch9.addConstraint(Sketcher.Constraint("Equal", 5, 7))
sketch9.addConstraint(Sketcher.Constraint("Radius", 1, Q("0.15 in")))
sketch9.addConstraint(Sketcher.Constraint("DistanceX", 0, 2, 0, 1, Q("0.57 in")))
sketch9.addConstraint(Sketcher.Constraint("DistanceY", 2, 2, 2, 1, Q("0.526 in")))
sketch9.addConstraint(Sketcher.Constraint("DistanceY", -1, 1, 1, 3, Q("1.105 in")))
sketch9.addConstraint(Sketcher.Constraint("DistanceX", -1, 1, 1, 3, Q("1.2845 in")))
pocket6 = body.newObject("PartDesign::Pocket", "Pocket005")
pocket6.Profile = sketch9
pocket6.Length = Q("0.4 in")
pocket6.Reversed = True

# Sketch on XY plane
sketch10 = body.newObject("Sketcher::SketchObject", "Sketch009")
sketch10.AttachmentSupport = (doc.getObject("XY_Plane"), [""])
sketch10.MapMode = "FlatFace"
sketch10.addGeometry(Part.Circle(Vector(55, 32.6, 0), Vector(0, 0, 1), 2.8), False)
sketch10.addGeometry(Part.Circle(Vector(55, 10.2, 0), Vector(0, 0, 1), 2.8), False)
sketch10.addGeometry(Part.Circle(Vector(24.7, 10.2, 0), Vector(0, 0, 1), 2.8), False)
sketch10.addGeometry(Part.Circle(Vector(24.7, 32.6, 0), Vector(0, 0, 1), 2.8), False)
sketch10.addConstraint(Sketcher.Constraint("Equal", 0, 1))
sketch10.addConstraint(Sketcher.Constraint("Equal", 1, 2))
sketch10.addConstraint(Sketcher.Constraint("Equal", 2, 3))
sketch10.addConstraint(Sketcher.Constraint("Horizontal", 1, 3, 2, 3))
sketch10.addConstraint(Sketcher.Constraint("Horizontal", 0, 3, 3, 3))
sketch10.addConstraint(Sketcher.Constraint("Vertical", 0, 3, 1, 3))
sketch10.addConstraint(Sketcher.Constraint("Vertical", 2, 3, 3, 3))
sketch10.addConstraint(Sketcher.Constraint("DistanceY", -1, 1, 1, 3, Q("0.4 in")))
sketch10.addConstraint(Sketcher.Constraint("Diameter", 0, 5.599989))
sketch10.addConstraint(Sketcher.Constraint("DistanceX", -1, 1, 0, 3, Q("2.167 in")))
sketch10.addConstraint(Sketcher.Constraint("DistanceY", -1, 1, 0, 3, Q("1.284 in")))
sketch10.addConstraint(Sketcher.Constraint("DistanceX", -1, 1, 2, 3, Q("0.972 in")))
pocket7 = body.newObject("PartDesign::Pocket", "Pocket006")
pocket7.Profile = sketch10
pocket7.Length = 5.499989

# Sketch on XY plane
sketch11 = body.newObject("Sketcher::SketchObject", "Sketch010")
sketch11.AttachmentSupport = (doc.getObject("XY_Plane"), [""])
sketch11.MapMode = "FlatFace"
sketch11.AttachmentOffset = App.Placement(Vector(0, 0, -248.500011), App.Rotation())
sketch11.addGeometry(Part.Circle(Vector(55, 32.6, 0), Vector(0, 0, 1), 2.8), False)
sketch11.addGeometry(Part.Circle(Vector(55, 10.2, 0), Vector(0, 0, 1), 2.8), False)
sketch11.addGeometry(Part.Circle(Vector(24.7, 10.2, 0), Vector(0, 0, 1), 2.8), False)
sketch11.addGeometry(Part.Circle(Vector(24.7, 32.6, 0), Vector(0, 0, 1), 2.8), False)
sketch11.addConstraint(Sketcher.Constraint("Equal", 0, 1))
sketch11.addConstraint(Sketcher.Constraint("Equal", 1, 2))
sketch11.addConstraint(Sketcher.Constraint("Equal", 2, 3))
sketch11.addConstraint(Sketcher.Constraint("Horizontal", 1, 3, 2, 3))
sketch11.addConstraint(Sketcher.Constraint("Horizontal", 0, 3, 3, 3))
sketch11.addConstraint(Sketcher.Constraint("Vertical", 0, 3, 1, 3))
sketch11.addConstraint(Sketcher.Constraint("Vertical", 2, 3, 3, 3))
sketch11.addConstraint(Sketcher.Constraint("DistanceY", -1, 1, 1, 3, Q("0.4 in")))
sketch11.addConstraint(Sketcher.Constraint("Diameter", 0, 5.599989))
sketch11.addConstraint(Sketcher.Constraint("DistanceX", -1, 1, 0, 3, Q("2.167 in")))
sketch11.addConstraint(Sketcher.Constraint("DistanceY", -1, 1, 0, 3, Q("1.284 in")))
sketch11.addConstraint(Sketcher.Constraint("DistanceX", -1, 1, 2, 3, Q("0.972 in")))
pocket8 = body.newObject("PartDesign::Pocket", "Pocket007")
pocket8.Profile = sketch11
pocket8.Length = 5.499989

# Sketch on XZ plane
sketch12 = body.newObject("Sketcher::SketchObject", "Sketch011")
sketch12.AttachmentSupport = (doc.getObject("XZ_Plane"), [""])
sketch12.MapMode = "FlatFace"
sketch12.AttachmentOffset = App.Placement(Vector(0, 0, -0.2 * 25.4), App.Rotation())
sketch12.addGeometry(Part.Circle(Vector(55, -82, 0), Vector(0, 0, 1), 5), False)
sketch12.addGeometry(Part.Circle(Vector(121, -82, 0), Vector(0, 0, 1), 5), False)
sketch12.addGeometry(Part.Circle(Vector(121, -172, 0), Vector(0, 0, 1), 5), False)
sketch12.addGeometry(Part.Circle(Vector(55, -172, 0), Vector(0, 0, 1), 5), False)
sketch12.addConstraint(Sketcher.Constraint("Equal", 0, 1))
sketch12.addConstraint(Sketcher.Constraint("Equal", 1, 2))
sketch12.addConstraint(Sketcher.Constraint("Equal", 2, 3))
sketch12.addConstraint(Sketcher.Constraint("Horizontal", 0, 3, 1, 3))
sketch12.addConstraint(Sketcher.Constraint("Horizontal", 2, 3, 3, 3))
sketch12.addConstraint(Sketcher.Constraint("Vertical", 1, 3, 2, 3))
sketch12.addConstraint(Sketcher.Constraint("Vertical", 0, 3, 3, 3))
sketch12.addConstraint(Sketcher.Constraint("Diameter", 0, 10.0))
sketch12.addConstraint(Sketcher.Constraint("DistanceX", -1, 1, 1, 3, Q("4.767 in")))
sketch12.addConstraint(Sketcher.Constraint("DistanceX", -1, 1, 0, 3, 55.4218))
sketch12.addConstraint(Sketcher.Constraint("DistanceY", 0, 3, -1, 1, 82.485))
sketch12.addConstraint(Sketcher.Constraint("DistanceY", 2, 3, -1, 1, 171.515))
pad2 = body.newObject("PartDesign::Pad", "Pad001")
pad2.Profile = sketch12
pad2.Length = Q("0.25 in")
pad2.Reversed = True

# Sketch on XZ plane
sketch13 = body.newObject("Sketcher::SketchObject", "Sketch012")
sketch13.AttachmentSupport = (doc.getObject("XZ_Plane"), [""])
sketch13.MapMode = "FlatFace"
sketch13.AttachmentOffset = App.Placement(Vector(0, 0, -0.45 * 25.4), App.Rotation())
sketch13.addGeometry(Part.Circle(Vector(55.4, -171.5, 0), Vector(0, 0, 1), 2.8), False)
sketch13.addGeometry(Part.Circle(Vector(121.1, -171.5, 0), Vector(0, 0, 1), 2.8), False)
sketch13.addGeometry(Part.Circle(Vector(121.1, -82.5, 0), Vector(0, 0, 1), 2.8), False)
sketch13.addGeometry(Part.Circle(Vector(55.4, -82.5, 0), Vector(0, 0, 1), 2.8), False)
sketch13.addConstraint(Sketcher.Constraint("Equal", 0, 1))
sketch13.addConstraint(Sketcher.Constraint("Equal", 1, 2))
sketch13.addConstraint(Sketcher.Constraint("Equal", 2, 3))
sketch13.addConstraint(Sketcher.Constraint("Horizontal", 0, 3, 1, 3))
sketch13.addConstraint(Sketcher.Constraint("Horizontal", 2, 3, 3, 3))
sketch13.addConstraint(Sketcher.Constraint("Vertical", 1, 3, 2, 3))
sketch13.addConstraint(Sketcher.Constraint("Vertical", 0, 3, 3, 3))
sketch13.addConstraint(Sketcher.Constraint("Diameter", 0, 5.599989))
sketch13.addConstraint(Sketcher.Constraint("DistanceX", -1, 1, 1, 3, Q("4.767 in")))
sketch13.addConstraint(Sketcher.Constraint("DistanceX", -1, 1, 0, 3, 55.4218))
sketch13.addConstraint(Sketcher.Constraint("DistanceY", 0, 3, -1, 1, 171.515))
sketch13.addConstraint(Sketcher.Constraint("DistanceY", 2, 3, -1, 1, 82.485))
pocket9 = body.newObject("PartDesign::Pocket", "Pocket008")
pocket9.Profile = sketch13
pocket9.Length = 5.499989
pocket9.Reversed = True

doc.recompute()
